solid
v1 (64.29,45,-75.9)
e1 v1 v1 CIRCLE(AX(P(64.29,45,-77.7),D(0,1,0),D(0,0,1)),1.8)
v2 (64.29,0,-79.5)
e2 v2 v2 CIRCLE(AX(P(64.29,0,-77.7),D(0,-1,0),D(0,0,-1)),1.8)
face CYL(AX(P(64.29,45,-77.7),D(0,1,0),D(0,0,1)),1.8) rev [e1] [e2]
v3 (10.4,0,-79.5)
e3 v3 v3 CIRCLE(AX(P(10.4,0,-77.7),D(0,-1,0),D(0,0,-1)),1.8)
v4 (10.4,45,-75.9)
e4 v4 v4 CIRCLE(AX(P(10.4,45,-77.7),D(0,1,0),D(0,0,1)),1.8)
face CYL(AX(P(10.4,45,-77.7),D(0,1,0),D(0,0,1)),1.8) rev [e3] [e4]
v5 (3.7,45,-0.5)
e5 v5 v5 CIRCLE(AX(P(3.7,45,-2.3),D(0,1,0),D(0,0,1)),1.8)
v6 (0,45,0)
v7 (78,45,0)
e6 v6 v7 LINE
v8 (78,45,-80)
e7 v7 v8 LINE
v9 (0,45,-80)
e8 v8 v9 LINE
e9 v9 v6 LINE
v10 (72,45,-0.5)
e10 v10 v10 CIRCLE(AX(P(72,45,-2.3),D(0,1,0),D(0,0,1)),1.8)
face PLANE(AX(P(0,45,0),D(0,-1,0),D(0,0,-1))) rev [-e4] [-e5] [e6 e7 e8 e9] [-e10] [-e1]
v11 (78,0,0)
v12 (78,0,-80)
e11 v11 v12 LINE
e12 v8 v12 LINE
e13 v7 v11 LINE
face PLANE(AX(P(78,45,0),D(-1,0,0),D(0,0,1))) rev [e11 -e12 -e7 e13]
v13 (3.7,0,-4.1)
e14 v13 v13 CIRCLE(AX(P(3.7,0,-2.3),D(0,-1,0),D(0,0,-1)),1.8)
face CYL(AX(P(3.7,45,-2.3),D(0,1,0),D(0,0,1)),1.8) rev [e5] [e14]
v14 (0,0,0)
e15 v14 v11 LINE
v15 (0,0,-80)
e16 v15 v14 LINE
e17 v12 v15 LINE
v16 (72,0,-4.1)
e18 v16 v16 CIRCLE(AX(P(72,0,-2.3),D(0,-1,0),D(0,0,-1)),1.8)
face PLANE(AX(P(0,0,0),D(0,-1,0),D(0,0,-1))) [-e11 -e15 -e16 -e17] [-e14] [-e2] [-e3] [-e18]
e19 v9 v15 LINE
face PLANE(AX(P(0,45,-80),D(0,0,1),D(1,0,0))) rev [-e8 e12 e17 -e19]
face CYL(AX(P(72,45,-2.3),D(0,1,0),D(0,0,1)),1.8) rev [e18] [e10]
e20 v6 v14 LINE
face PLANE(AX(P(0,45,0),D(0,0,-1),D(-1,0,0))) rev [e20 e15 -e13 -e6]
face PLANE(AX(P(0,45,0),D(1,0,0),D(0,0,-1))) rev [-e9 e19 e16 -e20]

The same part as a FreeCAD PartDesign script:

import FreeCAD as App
import Part
import Sketcher
from FreeCAD import Vector

doc = App.newDocument("Part")
body = doc.addObject("PartDesign::Body", "Body")

# Sketch on XZ plane
sketch1 = doc.addObject("Sketcher::SketchObject", "Sketch")
body.addObject(sketch1)
sketch1.AttachmentSupport = (doc.XZ_Plane, [""])
sketch1.MapMode = "FlatFace"
sketch1.addGeometry(Part.LineSegment(Vector(0, -80, 0), Vector(0, 0, 0)), False)
sketch1.addGeometry(Part.LineSegment(Vector(0, 0, 0), Vector(78, 0, 0)), False)
sketch1.addGeometry(Part.LineSegment(Vector(78, 0, 0), Vector(78, -80, 0)), False)
sketch1.addGeometry(Part.LineSegment(Vector(78, -80, 0), Vector(0, -80, 0)), False)
sketch1.addConstraint(Sketcher.Constraint("Coincident", 0, 2, 1, 1))
sketch1.addConstraint(Sketcher.Constraint("Coincident", 1, 2, 2, 1))
sketch1.addConstraint(Sketcher.Constraint("Coincident", 2, 2, 3, 1))
sketch1.addConstraint(Sketcher.Constraint("Coincident", 3, 2, 0, 1))
sketch1.addConstraint(Sketcher.Constraint("Vertical", 0))
sketch1.addConstraint(Sketcher.Constraint("Horizontal", 1))
sketch1.addConstraint(Sketcher.Constraint("Vertical", 2))
sketch1.addConstraint(Sketcher.Constraint("Horizontal", 3))
sketch1.addConstraint(Sketcher.Constraint("Coincident", 0, 2, -1, 1))
sketch1.addConstraint(Sketcher.Constraint("DistanceX", 1, 1, 1, 2, 78.0))
sketch1.addConstraint(Sketcher.Constraint("DistanceY", 0, 1, 0, 2, 80.0))
pad1 = doc.addObject("PartDesign::Pad", "Pad")
body.addObject(pad1)
pad1.Profile = sketch1
pad1.Length = 45
pad1.Reversed = True

# Sketch on XZ plane
sketch2 = doc.addObject("Sketcher::SketchObject", "Sketch001")
body.addObject(sketch2)
sketch2.AttachmentSupport = (doc.XZ_Plane, [""])
sketch2.MapMode = "FlatFace"
sketch2.AttachmentOffset = App.Placement(Vector(0, 0, -45), App.Rotation())
sketch2.addGeometry(Part.Circle(Vector(10.4, -77.7, 0), Vector(0, 0, 1), 1.8), False)
sketch2.addGeometry(Part.Circle(Vector(64.3, -77.7, 0), Vector(0, 0, 1), 1.8), False)
sketch2.addGeometry(Part.Circle(Vector(72, -2.3, 0), Vector(0, 0, 1), 1.8), False)
sketch2.addGeometry(Part.Circle(Vector(3.7, -2.3, 0), Vector(0, 0, 1), 1.8), False)
sketch2.addConstraint(Sketcher.Constraint("Equal", 0, 1))
sketch2.addConstraint(Sketcher.Constraint("Equal", 1, 2))
sketch2.addConstraint(Sketcher.Constraint("Equal", 2, 3))
sketch2.addConstraint(Sketcher.Constraint("Horizontal", 0, 3, 1, 3))
sketch2.addConstraint(Sketcher.Constraint("Horizontal", 2, 3, 3, 3))
sketch2.addConstraint(Sketcher.Constraint("Diameter", 0, 3.6))
sketch2.addConstraint(Sketcher.Constraint("DistanceX", -1, 1, 2, 3, 72.0))
sketch2.addConstraint(Sketcher.Constraint("DistanceX", -1, 1, 0, 3, 10.4))
sketch2.addConstraint(Sketcher.Constraint("DistanceY", 0, 3, -1, 1, 77.7))
sketch2.addConstraint(Sketcher.Constraint("DistanceY", 2, 3, -1, 1, 2.3))
sketch2.addConstraint(Sketcher.Constraint("DistanceX", -1, 1, 3, 3, 3.7))
sketch2.addConstraint(Sketcher.Constraint("DistanceX", -1, 1, 1, 3, 64.29))
doc.recompute()
hole = doc.addObject("PartDesign::Hole", "Hole")
body.addObject(hole)
hole.Profile = sketch2
hole.ThreadType = "None"
hole.Diameter = 3.6
hole.DepthType = "Dimension"
hole.Depth = 45
hole.DrillPoint = "Flat"
hole.Reversed = True

doc.recompute()
